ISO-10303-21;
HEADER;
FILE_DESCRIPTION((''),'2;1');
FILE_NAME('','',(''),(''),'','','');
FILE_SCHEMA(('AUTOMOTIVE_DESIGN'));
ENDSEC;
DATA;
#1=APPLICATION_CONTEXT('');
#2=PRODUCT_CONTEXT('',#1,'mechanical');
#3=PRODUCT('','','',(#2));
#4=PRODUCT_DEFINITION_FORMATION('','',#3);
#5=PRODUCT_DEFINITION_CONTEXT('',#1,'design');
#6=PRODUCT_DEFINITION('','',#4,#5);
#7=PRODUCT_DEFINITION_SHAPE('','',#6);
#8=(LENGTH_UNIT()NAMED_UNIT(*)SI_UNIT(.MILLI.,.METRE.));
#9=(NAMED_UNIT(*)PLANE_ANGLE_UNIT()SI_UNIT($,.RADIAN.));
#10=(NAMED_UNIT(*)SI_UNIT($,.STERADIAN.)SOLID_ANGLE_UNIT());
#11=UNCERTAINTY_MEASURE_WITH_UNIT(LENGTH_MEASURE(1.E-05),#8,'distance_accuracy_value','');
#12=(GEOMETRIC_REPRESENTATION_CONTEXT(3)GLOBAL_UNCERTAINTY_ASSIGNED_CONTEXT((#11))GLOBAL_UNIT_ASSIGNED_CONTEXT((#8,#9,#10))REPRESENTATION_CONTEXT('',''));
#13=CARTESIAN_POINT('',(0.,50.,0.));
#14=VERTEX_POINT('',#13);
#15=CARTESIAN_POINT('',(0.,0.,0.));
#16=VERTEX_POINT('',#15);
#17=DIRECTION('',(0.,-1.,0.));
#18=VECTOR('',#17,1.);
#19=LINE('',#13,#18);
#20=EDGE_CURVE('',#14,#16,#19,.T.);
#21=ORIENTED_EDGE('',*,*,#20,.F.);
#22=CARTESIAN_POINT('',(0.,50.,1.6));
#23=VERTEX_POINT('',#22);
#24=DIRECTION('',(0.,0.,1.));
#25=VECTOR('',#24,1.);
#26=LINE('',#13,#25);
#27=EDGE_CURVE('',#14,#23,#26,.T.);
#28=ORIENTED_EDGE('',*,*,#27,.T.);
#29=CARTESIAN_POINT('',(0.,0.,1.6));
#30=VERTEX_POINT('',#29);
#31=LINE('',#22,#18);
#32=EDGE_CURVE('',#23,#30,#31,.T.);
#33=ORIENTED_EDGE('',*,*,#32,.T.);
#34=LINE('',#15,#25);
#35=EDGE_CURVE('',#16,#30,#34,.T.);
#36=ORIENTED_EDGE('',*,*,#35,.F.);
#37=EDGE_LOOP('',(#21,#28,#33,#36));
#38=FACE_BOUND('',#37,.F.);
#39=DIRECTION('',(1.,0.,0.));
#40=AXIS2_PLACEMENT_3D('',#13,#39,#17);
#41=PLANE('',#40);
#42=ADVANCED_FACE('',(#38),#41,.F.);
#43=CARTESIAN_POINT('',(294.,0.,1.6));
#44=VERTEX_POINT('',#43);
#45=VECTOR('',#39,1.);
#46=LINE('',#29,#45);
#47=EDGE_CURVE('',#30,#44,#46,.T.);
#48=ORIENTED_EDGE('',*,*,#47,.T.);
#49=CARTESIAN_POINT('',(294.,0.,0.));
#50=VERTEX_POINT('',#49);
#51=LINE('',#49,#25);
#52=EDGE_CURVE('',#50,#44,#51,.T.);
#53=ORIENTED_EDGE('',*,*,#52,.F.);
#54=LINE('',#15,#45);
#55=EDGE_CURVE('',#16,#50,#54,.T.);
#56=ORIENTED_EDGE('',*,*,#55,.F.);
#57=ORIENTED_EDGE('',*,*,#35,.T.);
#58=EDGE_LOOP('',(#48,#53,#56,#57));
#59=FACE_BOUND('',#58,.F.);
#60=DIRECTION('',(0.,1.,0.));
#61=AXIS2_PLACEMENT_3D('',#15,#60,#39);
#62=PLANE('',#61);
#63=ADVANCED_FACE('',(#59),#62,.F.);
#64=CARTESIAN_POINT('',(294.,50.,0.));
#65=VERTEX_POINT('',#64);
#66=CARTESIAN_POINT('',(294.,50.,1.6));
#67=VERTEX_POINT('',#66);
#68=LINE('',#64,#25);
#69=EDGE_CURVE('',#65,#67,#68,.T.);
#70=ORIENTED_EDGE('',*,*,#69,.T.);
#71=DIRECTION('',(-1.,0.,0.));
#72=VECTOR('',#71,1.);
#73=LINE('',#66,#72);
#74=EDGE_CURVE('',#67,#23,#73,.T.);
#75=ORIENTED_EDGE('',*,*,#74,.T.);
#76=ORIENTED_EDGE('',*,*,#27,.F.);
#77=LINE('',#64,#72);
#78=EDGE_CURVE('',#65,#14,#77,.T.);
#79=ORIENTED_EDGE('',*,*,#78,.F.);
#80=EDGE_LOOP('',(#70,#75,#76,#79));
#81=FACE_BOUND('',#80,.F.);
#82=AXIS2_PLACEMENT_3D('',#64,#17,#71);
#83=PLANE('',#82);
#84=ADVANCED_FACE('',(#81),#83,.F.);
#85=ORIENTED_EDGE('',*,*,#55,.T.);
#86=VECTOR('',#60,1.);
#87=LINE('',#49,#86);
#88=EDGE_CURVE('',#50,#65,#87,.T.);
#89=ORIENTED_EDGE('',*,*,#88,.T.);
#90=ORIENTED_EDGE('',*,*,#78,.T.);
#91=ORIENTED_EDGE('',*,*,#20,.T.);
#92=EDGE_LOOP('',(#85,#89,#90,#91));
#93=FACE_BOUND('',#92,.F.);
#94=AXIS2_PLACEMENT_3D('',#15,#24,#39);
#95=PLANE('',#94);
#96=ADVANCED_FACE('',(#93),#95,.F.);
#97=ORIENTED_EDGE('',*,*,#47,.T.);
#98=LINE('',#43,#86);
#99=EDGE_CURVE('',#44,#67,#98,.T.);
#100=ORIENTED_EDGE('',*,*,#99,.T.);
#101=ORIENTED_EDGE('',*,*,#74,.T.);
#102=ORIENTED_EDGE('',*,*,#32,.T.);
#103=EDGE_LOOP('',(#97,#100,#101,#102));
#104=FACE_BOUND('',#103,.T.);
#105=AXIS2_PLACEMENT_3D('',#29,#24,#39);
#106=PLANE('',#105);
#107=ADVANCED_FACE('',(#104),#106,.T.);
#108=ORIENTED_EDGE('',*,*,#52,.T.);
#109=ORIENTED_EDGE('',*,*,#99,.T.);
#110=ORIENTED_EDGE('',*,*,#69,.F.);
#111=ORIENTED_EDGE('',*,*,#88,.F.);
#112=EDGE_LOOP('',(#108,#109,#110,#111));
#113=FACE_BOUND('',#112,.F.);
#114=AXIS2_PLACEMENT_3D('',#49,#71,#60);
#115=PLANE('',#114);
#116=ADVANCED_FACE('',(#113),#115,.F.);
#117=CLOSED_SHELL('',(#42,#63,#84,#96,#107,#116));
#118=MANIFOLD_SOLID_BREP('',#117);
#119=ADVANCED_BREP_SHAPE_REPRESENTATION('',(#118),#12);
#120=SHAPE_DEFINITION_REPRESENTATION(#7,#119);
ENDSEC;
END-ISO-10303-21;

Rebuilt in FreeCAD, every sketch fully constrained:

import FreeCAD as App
import Part
import Sketcher
Q = App.Units.Quantity


def add_polygon(sketch, points):
    """Adds a closed chain of lines whose ends are joined by coincident constraints."""
    first, n = sketch.GeometryCount, len(points)
    for a, b in zip(points, points[1:] + points[:1]):
        sketch.addGeometry(Part.LineSegment(App.Vector(*a, 0), App.Vector(*b, 0)), False)
    for i in range(n):
        sketch.addConstraint(Sketcher.Constraint("Coincident", first + i, 2, first + (i + 1) % n, 1))

doc = App.newDocument("Part")
body = doc.addObject("PartDesign::Body", "Body")

# Sketch on XY plane
sketch1 = doc.addObject("Sketcher::SketchObject", "Sketch")
body.addObject(sketch1)
sketch1.AttachmentSupport = (doc.XY_Plane, [""])
sketch1.MapMode = "FlatFace"
add_polygon(sketch1, [(0, 50), (0, 0), (294, 0), (294, 50)])  # lines 0-3
sketch1.addConstraint(Sketcher.Constraint("Vertical", 0))
sketch1.addConstraint(Sketcher.Constraint("Horizontal", 1))
sketch1.addConstraint(Sketcher.Constraint("Vertical", 2))
sketch1.addConstraint(Sketcher.Constraint("Horizontal", 3))
sketch1.addConstraint(Sketcher.Constraint("Coincident", 0, 2, -1, 1))
sketch1.addConstraint(Sketcher.Constraint("DistanceX", 1, 1, 1, 2, Q("11.5748 in")))
sketch1.addConstraint(Sketcher.Constraint("DistanceY", 0, 2, 0, 1, Q("1.9685 in")))
pad1 = doc.addObject("PartDesign::Pad", "Pad")
body.addObject(pad1)
pad1.Profile = sketch1
pad1.Length = Q("0.0629921 in")

doc.recompute()
